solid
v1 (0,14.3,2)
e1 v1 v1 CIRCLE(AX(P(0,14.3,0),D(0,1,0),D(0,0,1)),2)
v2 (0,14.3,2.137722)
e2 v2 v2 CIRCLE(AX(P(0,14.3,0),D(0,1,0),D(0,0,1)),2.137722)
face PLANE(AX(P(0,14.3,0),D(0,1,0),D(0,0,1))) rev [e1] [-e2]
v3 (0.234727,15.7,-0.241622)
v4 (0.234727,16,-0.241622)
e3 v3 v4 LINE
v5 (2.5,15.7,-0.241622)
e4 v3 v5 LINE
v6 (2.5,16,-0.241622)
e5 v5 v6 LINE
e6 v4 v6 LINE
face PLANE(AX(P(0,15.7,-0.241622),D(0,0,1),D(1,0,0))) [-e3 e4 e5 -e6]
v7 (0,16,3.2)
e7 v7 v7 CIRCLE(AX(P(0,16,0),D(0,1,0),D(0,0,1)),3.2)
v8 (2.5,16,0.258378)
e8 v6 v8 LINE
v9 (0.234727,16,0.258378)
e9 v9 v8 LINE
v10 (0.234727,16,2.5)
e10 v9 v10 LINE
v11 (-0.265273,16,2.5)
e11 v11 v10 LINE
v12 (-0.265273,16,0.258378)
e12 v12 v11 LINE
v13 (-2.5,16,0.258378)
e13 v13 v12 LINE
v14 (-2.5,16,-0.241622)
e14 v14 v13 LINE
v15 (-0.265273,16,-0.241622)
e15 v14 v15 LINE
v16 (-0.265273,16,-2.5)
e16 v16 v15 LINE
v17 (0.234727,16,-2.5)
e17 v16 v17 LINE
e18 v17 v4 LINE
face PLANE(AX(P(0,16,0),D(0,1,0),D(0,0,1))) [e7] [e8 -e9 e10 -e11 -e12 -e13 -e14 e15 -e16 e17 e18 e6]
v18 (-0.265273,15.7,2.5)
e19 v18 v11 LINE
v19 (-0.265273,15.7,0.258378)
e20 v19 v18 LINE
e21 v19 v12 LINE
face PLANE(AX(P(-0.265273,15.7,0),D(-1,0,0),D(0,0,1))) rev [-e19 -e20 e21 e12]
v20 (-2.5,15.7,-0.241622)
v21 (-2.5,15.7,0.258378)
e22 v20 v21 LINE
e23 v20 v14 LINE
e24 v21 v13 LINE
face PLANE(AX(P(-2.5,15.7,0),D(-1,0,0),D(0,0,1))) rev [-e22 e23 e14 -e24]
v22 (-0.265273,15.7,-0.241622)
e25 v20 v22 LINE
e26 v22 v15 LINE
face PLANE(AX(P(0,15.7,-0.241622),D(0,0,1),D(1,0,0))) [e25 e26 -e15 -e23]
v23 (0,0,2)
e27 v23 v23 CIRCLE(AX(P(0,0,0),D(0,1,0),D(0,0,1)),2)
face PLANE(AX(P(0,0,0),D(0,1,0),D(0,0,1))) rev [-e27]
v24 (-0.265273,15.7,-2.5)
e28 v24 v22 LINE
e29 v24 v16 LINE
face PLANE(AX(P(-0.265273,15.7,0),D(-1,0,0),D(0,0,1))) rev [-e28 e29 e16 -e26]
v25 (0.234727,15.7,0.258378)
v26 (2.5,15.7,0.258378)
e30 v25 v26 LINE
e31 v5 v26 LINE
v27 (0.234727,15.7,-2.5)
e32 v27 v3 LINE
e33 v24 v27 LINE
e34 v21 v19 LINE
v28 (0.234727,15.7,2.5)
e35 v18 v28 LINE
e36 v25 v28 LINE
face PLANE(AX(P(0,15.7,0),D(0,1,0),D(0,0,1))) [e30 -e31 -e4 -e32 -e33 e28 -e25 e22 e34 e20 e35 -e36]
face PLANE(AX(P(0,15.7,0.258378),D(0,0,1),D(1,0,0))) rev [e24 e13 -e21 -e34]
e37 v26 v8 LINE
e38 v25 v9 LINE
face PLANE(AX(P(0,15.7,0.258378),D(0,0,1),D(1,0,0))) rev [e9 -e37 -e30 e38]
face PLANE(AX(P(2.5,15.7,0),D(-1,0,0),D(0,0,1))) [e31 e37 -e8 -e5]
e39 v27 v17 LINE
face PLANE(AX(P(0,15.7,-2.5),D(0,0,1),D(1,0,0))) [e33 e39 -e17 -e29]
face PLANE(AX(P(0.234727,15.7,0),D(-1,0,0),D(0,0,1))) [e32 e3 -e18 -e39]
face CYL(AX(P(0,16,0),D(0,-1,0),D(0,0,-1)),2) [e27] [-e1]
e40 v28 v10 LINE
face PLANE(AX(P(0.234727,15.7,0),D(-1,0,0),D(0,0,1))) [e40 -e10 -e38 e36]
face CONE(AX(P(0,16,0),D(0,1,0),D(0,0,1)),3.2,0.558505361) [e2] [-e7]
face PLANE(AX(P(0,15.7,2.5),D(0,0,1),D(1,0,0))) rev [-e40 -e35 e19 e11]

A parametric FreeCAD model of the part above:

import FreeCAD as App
import Part
import Sketcher
from FreeCAD import Vector
Q = App.Units.Quantity

doc = App.newDocument("Part")
params = doc.addObject("Spreadsheet::Sheet", "Params")
for row, (alias, value) in enumerate([
    ("sketch1_diameter", "4 mm"),
    ("pad1_length", "16 mm"),
    ("sketch2_diameter", "6.4 mm"),
    ("pad2_length", "1.7 mm"),
    ("pad2_taper", "-32 deg"),
    ("sketch3_width", "0.5 mm"),
    ("pocket1_length", "0.3 mm"),
], start=1):
    params.set(f"A{row}", alias)
    params.set(f"B{row}", "=" + value)
    params.setAlias(f"B{row}", alias)

body = doc.addObject("PartDesign::Body", "Body")

sketch1 = body.newObject("Sketcher::SketchObject", "Sketch")
sketch1.AttachmentSupport = (doc.getObject("XZ_Plane"), [""])
sketch1.MapMode = "FlatFace"
sketch1.addGeometry(Part.Circle(Vector(0, 0, 0), Vector(0, 0, 1), 2), False)
sketch1.addConstraint([
    Sketcher.Constraint("Coincident", 0, 3, -1, 1),
    Sketcher.Constraint("Diameter", 0, Q("4 mm")),
])
sketch1.setExpression("Constraints[1]", "Params.sketch1_diameter")
pad1 = body.newObject("PartDesign::Pad", "Pad")
pad1.Profile = sketch1
pad1.setExpression("Length", "Params.pad1_length")
pad1.Reversed = True

sketch2 = body.newObject("Sketcher::SketchObject", "Sketch001")
sketch2.AttachmentSupport = (doc.getObject("XZ_Plane"), [""])
sketch2.MapMode = "FlatFace"
sketch2.AttachmentOffset = App.Placement(Vector(0, 0, -16), App.Rotation())
sketch2.addGeometry(Part.Circle(Vector(0, 0, 0), Vector(0, 0, 1), 3.2), False)
sketch2.addConstraint([
    Sketcher.Constraint("Coincident", 0, 3, -1, 1),
    Sketcher.Constraint("Diameter", 0, Q("6.4 mm")),
])
sketch2.setExpression("Constraints[1]", "Params.sketch2_diameter")
pad2 = body.newObject("PartDesign::Pad", "Pad001")
pad2.Profile = sketch2
pad2.setExpression("Length", "Params.pad2_length")
pad2.setExpression("TaperAngle", "Params.pad2_taper")

sketch3 = body.newObject("Sketcher::SketchObject", "Sketch002")
sketch3.AttachmentSupport = (doc.getObject("XZ_Plane"), [""])
sketch3.MapMode = "FlatFace"
sketch3.AttachmentOffset = App.Placement(Vector(0, 0, -16), App.Rotation())
sketch3.addGeometry([
    Part.LineSegment(Vector(-0.3, -2.5, 0), Vector(-0.3, -0.2, 0)),
    Part.LineSegment(Vector(-0.3, -0.2, 0), Vector(-2.5, -0.2, 0)),
    Part.LineSegment(Vector(-2.5, -0.2, 0), Vector(-2.5, 0.3, 0)),
    Part.LineSegment(Vector(-2.5, 0.3, 0), Vector(-0.3, 0.3, 0)),
    Part.LineSegment(Vector(-0.3, 0.3, 0), Vector(-0.3, 2.5, 0)),
    Part.LineSegment(Vector(-0.3, 2.5, 0), Vector(0.2, 2.5, 0)),
    Part.LineSegment(Vector(0.2, 2.5, 0), Vector(0.2, 0.3, 0)),
    Part.LineSegment(Vector(0.2, 0.3, 0), Vector(2.5, 0.3, 0)),
    Part.LineSegment(Vector(2.5, 0.3, 0), Vector(2.5, -0.2, 0)),
    Part.LineSegment(Vector(2.5, -0.2, 0), Vector(0.2, -0.2, 0)),
    Part.LineSegment(Vector(0.2, -0.2, 0), Vector(0.2, -2.5, 0)),
    Part.LineSegment(Vector(0.2, -2.5, 0), Vector(-0.3, -2.5, 0)),
], False)
sketch3.addConstraint([
    Sketcher.Constraint("Coincident", 0, 2, 1, 1),
    Sketcher.Constraint("Coincident", 1, 2, 2, 1),
    Sketcher.Constraint("Coincident", 2, 2, 3, 1),
    Sketcher.Constraint("Coincident", 3, 2, 4, 1),
    Sketcher.Constraint("Coincident", 4, 2, 5, 1),
    Sketcher.Constraint("Coincident", 5, 2, 6, 1),
    Sketcher.Constraint("Coincident", 6, 2, 7, 1),
    Sketcher.Constraint("Coincident", 7, 2, 8, 1),
    Sketcher.Constraint("Coincident", 8, 2, 9, 1),
    Sketcher.Constraint("Coincident", 9, 2, 10, 1),
    Sketcher.Constraint("Coincident", 10, 2, 11, 1),
    Sketcher.Constraint("Coincident", 11, 2, 0, 1),
    Sketcher.Constraint("Vertical", 0),
    Sketcher.Constraint("Horizontal", 1),
    Sketcher.Constraint("Vertical", 2),
    Sketcher.Constraint("Horizontal", 3),
    Sketcher.Constraint("Vertical", 4),
    Sketcher.Constraint("Horizontal", 5),
    Sketcher.Constraint("Vertical", 6),
    Sketcher.Constraint("Horizontal", 7),
    Sketcher.Constraint("Vertical", 8),
    Sketcher.Constraint("Horizontal", 9),
    Sketcher.Constraint("Vertical", 10),
    Sketcher.Constraint("Horizontal", 11),
    Sketcher.Constraint("Symmetric", 2, 2, 7, 2, -2),
    Sketcher.Constraint("Symmetric", 5, 2, 10, 2, -1),
    Sketcher.Constraint("Horizontal", 1, 2, 8, 2),
    Sketcher.Constraint("Vertical", 0, 2, 3, 2),
    Sketcher.Constraint("Equal", 11, 2),
    Sketcher.Constraint("DistanceX", 5, 1, 5, 2, Q("0.5 mm")),
    Sketcher.Constraint("DistanceX", 1, 2, -1, 1, Q("2.5 mm")),
    Sketcher.Constraint("DistanceY", -1, 1, 4, 2, Q("2.5 mm")),
    Sketcher.Constraint("DistanceY", 0, 1, 0, 2, Q("2.258378 mm")),
    Sketcher.Constraint("DistanceX", 1, 2, 1, 1, Q("2.234727 mm")),
])
sketch3.setExpression("Constraints[29]", "Params.sketch3_width")
pocket1 = body.newObject("PartDesign::Pocket", "Pocket")
pocket1.Profile = sketch3
pocket1.setExpression("Length", "Params.pocket1_length")
pocket1.Reversed = True

doc.recompute()
